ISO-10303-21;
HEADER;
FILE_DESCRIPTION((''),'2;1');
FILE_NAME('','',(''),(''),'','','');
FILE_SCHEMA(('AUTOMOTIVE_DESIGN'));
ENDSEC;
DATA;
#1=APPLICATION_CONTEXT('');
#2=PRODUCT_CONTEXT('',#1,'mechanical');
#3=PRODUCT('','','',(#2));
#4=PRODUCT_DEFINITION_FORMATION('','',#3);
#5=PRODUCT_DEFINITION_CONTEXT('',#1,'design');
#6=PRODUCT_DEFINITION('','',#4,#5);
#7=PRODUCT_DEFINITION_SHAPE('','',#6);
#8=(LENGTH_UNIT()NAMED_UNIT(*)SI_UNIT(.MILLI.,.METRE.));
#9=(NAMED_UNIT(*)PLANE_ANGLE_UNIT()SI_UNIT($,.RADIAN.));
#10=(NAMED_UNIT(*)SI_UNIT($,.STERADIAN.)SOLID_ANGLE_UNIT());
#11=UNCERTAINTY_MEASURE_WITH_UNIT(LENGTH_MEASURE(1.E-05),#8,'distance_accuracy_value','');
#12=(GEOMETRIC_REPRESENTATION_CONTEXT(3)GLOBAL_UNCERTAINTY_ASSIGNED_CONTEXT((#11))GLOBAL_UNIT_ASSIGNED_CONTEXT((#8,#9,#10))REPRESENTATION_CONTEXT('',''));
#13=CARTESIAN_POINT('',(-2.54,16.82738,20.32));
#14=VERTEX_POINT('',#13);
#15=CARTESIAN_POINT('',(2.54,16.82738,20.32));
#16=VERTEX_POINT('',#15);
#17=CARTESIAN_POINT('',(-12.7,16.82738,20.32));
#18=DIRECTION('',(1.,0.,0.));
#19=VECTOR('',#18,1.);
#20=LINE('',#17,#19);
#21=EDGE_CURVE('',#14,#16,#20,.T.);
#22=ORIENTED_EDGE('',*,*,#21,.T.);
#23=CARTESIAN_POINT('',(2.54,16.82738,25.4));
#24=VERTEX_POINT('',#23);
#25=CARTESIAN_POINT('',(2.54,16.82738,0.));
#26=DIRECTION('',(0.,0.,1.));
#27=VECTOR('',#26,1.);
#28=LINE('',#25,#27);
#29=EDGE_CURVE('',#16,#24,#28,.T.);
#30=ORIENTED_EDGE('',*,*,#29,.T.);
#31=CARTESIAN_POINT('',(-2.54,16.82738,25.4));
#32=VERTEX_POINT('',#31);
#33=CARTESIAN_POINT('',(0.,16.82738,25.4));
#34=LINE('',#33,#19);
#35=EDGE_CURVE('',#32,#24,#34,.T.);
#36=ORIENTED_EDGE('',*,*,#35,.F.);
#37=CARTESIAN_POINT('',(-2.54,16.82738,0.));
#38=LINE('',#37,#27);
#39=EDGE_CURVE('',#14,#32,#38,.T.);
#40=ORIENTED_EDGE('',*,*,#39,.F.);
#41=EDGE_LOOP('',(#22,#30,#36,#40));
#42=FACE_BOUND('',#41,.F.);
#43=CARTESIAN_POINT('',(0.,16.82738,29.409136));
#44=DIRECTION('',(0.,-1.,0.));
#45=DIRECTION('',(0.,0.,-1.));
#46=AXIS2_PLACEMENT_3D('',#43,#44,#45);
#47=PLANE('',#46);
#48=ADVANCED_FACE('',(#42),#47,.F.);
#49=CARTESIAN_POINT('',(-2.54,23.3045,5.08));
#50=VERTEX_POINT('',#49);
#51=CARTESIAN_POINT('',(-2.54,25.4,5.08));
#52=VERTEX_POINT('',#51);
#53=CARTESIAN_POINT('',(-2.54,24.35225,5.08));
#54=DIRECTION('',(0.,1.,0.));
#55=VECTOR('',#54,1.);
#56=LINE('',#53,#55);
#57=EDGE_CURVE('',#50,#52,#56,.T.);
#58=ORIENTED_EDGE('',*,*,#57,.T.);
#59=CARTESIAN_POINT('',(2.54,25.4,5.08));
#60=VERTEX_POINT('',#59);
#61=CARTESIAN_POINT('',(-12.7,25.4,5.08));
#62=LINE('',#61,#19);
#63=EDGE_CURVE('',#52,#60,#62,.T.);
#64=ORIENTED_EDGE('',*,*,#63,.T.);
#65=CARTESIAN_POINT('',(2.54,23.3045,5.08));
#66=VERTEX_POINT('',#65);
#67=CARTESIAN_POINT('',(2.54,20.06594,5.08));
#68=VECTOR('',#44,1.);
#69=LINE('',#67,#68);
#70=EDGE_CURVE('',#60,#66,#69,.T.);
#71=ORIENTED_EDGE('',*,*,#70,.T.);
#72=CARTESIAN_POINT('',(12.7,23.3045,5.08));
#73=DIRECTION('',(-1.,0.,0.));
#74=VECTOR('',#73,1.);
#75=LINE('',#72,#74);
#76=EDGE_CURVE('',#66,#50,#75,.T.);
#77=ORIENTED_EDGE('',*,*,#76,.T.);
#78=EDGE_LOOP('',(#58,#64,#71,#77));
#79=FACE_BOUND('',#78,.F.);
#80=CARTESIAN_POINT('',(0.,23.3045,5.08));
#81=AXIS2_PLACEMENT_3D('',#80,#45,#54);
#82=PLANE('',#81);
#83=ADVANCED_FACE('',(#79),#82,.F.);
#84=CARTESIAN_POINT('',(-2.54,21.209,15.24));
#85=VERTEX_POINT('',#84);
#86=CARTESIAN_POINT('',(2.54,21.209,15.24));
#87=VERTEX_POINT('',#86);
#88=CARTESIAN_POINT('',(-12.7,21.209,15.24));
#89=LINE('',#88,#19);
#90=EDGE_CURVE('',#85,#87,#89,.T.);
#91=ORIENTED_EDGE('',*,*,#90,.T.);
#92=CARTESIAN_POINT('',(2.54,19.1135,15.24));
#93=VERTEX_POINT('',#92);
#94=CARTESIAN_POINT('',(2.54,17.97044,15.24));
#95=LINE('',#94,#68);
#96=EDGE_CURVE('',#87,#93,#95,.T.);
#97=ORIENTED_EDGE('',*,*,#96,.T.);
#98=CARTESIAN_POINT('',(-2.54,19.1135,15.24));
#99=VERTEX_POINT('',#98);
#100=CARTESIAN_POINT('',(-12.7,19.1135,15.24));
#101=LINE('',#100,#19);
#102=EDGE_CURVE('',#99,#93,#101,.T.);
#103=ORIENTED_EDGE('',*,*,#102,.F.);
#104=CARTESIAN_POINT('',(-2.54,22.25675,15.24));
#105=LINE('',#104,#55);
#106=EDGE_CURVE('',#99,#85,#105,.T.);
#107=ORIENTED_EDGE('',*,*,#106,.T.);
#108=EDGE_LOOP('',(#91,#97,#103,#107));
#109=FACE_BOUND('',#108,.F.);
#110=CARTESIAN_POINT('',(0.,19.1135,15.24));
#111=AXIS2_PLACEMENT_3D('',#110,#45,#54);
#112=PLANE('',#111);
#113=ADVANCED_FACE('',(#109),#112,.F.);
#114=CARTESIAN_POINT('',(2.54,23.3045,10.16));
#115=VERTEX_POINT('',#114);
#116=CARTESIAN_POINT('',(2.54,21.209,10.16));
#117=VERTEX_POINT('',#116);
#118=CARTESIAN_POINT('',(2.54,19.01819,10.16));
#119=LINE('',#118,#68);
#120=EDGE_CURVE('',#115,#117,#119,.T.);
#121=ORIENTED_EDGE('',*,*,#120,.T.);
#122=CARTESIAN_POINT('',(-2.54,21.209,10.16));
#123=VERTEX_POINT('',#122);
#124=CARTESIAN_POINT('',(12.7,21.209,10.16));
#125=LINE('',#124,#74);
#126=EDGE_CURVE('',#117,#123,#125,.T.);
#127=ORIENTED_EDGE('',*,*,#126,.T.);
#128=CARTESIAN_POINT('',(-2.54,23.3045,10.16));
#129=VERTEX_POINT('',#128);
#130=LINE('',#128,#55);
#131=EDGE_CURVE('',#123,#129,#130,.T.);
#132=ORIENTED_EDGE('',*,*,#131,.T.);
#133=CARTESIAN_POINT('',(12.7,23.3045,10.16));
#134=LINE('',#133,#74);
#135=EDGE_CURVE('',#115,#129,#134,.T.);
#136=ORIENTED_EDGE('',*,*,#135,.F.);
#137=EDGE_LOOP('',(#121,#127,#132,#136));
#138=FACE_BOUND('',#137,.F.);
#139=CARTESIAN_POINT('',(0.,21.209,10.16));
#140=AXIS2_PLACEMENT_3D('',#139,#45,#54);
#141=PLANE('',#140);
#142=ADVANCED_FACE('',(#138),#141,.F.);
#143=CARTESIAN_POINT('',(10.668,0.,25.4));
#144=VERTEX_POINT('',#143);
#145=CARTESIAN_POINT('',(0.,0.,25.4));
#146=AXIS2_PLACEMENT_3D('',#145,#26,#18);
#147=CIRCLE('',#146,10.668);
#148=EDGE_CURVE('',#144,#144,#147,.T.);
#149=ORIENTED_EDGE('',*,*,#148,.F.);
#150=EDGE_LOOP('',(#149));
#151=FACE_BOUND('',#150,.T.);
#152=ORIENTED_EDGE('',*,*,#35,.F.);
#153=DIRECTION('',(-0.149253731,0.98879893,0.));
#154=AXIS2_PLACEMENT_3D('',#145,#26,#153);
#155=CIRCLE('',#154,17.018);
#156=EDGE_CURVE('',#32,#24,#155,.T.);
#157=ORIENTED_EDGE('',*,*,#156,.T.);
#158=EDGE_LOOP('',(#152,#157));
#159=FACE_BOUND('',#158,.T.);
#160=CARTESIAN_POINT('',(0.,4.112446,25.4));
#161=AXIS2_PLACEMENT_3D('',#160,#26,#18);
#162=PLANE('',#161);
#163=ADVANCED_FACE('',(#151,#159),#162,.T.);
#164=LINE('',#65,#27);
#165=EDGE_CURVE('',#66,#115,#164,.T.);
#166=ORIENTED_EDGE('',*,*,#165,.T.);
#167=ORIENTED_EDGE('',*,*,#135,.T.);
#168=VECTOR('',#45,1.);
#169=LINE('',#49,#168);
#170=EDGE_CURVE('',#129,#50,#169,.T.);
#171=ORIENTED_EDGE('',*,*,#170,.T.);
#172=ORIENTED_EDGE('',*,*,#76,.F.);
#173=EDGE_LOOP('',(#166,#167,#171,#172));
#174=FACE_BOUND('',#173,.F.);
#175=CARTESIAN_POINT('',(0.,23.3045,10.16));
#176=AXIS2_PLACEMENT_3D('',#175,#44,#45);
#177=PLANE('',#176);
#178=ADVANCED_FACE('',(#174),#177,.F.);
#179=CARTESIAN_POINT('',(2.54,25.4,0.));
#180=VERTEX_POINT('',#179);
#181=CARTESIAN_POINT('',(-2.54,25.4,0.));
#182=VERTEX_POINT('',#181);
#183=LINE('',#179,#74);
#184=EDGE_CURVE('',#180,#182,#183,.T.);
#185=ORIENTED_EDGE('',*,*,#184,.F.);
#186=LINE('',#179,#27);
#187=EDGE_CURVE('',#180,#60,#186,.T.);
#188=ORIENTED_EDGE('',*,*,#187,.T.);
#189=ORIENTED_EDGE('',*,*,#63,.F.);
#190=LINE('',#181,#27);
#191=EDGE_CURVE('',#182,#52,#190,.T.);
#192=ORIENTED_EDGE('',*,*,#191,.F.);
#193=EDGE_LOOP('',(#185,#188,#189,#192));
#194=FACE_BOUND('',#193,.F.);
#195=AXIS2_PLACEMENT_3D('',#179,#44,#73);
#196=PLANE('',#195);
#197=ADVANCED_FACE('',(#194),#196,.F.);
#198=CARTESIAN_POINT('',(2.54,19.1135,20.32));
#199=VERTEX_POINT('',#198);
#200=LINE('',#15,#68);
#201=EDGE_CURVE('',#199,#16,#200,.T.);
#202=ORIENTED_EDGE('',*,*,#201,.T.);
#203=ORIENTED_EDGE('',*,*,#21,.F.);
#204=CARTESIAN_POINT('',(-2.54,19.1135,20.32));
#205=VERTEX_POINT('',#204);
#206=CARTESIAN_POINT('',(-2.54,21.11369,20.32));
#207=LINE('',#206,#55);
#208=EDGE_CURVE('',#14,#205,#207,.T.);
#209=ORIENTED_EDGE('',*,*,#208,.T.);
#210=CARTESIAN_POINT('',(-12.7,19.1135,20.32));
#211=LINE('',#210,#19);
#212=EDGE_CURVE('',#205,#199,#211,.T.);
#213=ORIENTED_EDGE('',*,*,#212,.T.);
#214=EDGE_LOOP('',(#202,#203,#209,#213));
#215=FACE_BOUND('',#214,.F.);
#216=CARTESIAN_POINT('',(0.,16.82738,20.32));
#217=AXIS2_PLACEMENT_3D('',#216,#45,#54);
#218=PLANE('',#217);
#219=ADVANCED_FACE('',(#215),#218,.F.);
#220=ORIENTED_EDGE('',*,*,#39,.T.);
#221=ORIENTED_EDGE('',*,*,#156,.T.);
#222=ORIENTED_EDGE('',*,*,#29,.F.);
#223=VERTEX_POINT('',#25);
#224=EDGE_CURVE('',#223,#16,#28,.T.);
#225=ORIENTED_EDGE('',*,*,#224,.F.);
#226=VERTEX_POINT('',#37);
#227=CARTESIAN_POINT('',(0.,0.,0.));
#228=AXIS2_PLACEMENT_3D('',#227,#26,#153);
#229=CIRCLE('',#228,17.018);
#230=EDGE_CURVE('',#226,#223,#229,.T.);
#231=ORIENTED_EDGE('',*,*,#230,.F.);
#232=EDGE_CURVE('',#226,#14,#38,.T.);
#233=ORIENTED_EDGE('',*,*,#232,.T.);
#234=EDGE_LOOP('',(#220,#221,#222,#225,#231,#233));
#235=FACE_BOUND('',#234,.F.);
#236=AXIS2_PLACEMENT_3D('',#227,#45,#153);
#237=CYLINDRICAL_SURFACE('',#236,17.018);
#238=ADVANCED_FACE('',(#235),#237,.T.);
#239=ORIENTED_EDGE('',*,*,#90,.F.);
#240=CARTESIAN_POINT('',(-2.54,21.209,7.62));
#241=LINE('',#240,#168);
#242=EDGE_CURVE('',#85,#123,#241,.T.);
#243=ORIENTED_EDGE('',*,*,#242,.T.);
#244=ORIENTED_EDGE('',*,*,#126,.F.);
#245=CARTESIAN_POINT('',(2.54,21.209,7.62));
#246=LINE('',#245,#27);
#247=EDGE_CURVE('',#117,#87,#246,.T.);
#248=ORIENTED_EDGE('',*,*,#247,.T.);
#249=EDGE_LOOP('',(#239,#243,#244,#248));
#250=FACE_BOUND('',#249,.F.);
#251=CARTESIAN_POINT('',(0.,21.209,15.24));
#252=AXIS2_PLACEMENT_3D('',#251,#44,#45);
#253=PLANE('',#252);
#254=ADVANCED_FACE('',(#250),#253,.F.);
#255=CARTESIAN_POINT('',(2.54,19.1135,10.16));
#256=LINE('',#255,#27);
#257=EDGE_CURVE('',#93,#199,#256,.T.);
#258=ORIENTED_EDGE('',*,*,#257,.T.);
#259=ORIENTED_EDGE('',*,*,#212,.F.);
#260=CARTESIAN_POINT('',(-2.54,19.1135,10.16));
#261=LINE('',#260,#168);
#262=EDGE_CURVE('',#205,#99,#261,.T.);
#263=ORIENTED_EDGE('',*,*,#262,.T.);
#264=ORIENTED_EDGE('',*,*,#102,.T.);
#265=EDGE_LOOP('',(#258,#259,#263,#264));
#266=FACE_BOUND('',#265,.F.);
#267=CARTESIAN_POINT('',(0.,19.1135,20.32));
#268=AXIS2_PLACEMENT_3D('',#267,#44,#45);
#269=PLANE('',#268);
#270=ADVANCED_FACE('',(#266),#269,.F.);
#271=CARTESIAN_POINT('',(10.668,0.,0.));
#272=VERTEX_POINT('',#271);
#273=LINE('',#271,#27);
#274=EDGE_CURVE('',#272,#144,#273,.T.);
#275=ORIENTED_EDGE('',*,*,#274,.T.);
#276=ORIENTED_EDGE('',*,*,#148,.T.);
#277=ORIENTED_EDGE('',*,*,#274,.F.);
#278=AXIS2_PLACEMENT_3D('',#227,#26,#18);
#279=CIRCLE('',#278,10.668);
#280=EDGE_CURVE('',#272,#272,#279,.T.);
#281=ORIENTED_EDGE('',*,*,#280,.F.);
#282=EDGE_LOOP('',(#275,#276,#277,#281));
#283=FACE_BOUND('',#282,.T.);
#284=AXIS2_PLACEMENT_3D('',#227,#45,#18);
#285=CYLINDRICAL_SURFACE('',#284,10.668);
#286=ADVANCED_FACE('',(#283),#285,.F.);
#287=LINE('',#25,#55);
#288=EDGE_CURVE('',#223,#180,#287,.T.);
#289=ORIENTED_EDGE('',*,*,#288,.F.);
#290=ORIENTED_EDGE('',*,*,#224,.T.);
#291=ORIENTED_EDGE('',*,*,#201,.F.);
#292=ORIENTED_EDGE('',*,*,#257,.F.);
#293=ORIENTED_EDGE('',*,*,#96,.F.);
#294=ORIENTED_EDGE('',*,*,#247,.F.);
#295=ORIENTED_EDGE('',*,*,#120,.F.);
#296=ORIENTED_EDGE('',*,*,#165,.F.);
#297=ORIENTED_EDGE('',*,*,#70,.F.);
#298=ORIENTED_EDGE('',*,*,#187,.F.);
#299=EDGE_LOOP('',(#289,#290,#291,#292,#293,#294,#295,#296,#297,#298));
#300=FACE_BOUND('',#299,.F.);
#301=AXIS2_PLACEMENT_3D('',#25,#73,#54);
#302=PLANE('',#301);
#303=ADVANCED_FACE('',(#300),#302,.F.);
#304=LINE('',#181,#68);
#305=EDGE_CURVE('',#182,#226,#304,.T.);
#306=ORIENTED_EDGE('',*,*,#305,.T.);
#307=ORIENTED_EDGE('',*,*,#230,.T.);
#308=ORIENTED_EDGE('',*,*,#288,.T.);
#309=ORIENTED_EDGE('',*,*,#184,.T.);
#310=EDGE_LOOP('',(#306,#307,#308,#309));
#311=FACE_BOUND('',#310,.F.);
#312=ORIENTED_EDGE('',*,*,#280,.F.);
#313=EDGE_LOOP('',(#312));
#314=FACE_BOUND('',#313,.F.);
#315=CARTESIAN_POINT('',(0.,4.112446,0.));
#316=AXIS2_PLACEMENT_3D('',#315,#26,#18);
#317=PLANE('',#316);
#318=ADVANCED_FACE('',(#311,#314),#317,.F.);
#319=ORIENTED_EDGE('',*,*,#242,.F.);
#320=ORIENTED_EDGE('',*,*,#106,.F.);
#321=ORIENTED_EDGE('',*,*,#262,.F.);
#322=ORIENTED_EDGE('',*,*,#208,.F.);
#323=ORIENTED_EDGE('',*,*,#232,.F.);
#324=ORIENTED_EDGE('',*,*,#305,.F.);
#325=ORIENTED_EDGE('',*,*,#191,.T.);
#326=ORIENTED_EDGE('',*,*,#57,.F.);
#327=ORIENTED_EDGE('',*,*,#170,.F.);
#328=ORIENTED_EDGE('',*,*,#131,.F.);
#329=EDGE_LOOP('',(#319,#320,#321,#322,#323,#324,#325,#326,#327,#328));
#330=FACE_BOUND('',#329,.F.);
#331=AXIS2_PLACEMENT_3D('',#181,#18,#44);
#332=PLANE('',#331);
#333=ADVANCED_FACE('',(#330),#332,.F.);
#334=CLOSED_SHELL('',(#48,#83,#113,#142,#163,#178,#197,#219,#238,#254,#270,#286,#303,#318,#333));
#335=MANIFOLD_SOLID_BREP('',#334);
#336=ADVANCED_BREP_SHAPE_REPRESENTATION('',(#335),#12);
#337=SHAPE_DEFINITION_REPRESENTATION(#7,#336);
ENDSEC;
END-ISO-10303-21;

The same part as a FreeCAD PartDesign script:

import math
import FreeCAD as App
import Part
import Sketcher
Q = App.Units.Quantity

doc = App.newDocument("Part")
body = doc.addObject("PartDesign::Body", "Body")

# Sketch on XY plane
sketch1 = body.newObject("Sketcher::SketchObject", "Sketch")
sketch1.AttachmentSupport = (doc.getObject("XY_Plane"), [""])
sketch1.MapMode = "FlatFace"
sketch1.addGeometry([
    Part.LineSegment(App.Vector(-3, 25, 0), App.Vector(-3, 17, 0)),  # 0
    Part.ArcOfCircle(Part.Circle(App.Vector(0, 0, 0), App.Vector(0, 0, 1), 17), math.radians(99), math.radians(441)),  # 1
    Part.LineSegment(App.Vector(3, 17, 0), App.Vector(3, 25, 0)),  # 2
    Part.LineSegment(App.Vector(3, 25, 0), App.Vector(-3, 25, 0)),  # 3
    Part.Circle(App.Vector(0, 0, 0), App.Vector(0, 0, 1), 11),  # 4
], False)
sketch1.addConstraint([
    Sketcher.Constraint("Coincident", 0, 2, 1, 1),
    Sketcher.Constraint("Coincident", 1, 2, 2, 1),
    Sketcher.Constraint("Coincident", 2, 2, 3, 1),
    Sketcher.Constraint("Coincident", 3, 2, 0, 1),
    Sketcher.Constraint("Vertical", 0),
    Sketcher.Constraint("Vertical", 2),
    Sketcher.Constraint("Horizontal", 3),
    Sketcher.Constraint("Coincident", 1, 3, -1, 1),
    Sketcher.Constraint("Coincident", 4, 3, -1, 1),
    Sketcher.Constraint("Horizontal", 0, 2, 1, 2),
    Sketcher.Constraint("Diameter", 4, Q("0.84 in")),
    Sketcher.Constraint("Radius", 1, Q("0.67 in")),
    Sketcher.Constraint("DistanceX", 3, 2, 3, 1, Q("0.2 in")),
    Sketcher.Constraint("DistanceY", -1, 1, 2, 2, Q("1 in")),
])
pad1 = body.newObject("PartDesign::Pad", "Pad")
pad1.Profile = sketch1
pad1.Length = Q("1 in")

# Sketch on YZ plane
sketch2 = body.newObject("Sketcher::SketchObject", "Sketch001")
sketch2.AttachmentSupport = (doc.getObject("YZ_Plane"), [""])
sketch2.MapMode = "FlatFace"
sketch2.addGeometry([
    Part.LineSegment(App.Vector(23.3, 5.1, 0), App.Vector(25.4, 5.1, 0)),  # 0
    Part.LineSegment(App.Vector(25.4, 5.1, 0), App.Vector(25.4, -8.1, 0)),  # 1
    Part.LineSegment(App.Vector(25.4, -8.1, 0), App.Vector(35, -8.1, 0)),  # 2
    Part.LineSegment(App.Vector(35, -8.1, 0), App.Vector(35, 29.4, 0)),  # 3
    Part.LineSegment(App.Vector(35, 29.4, 0), App.Vector(16.8, 29.4, 0)),  # 4
    Part.LineSegment(App.Vector(16.8, 29.4, 0), App.Vector(16.8, 20.3, 0)),  # 5
    Part.LineSegment(App.Vector(16.8, 20.3, 0), App.Vector(19.1, 20.3, 0)),  # 6
    Part.LineSegment(App.Vector(19.1, 20.3, 0), App.Vector(19.1, 15.2, 0)),  # 7
    Part.LineSegment(App.Vector(19.1, 15.2, 0), App.Vector(21.2, 15.2, 0)),  # 8
    Part.LineSegment(App.Vector(21.2, 15.2, 0), App.Vector(21.2, 10.2, 0)),  # 9
    Part.LineSegment(App.Vector(21.2, 10.2, 0), App.Vector(23.3, 10.2, 0)),  # 10
    Part.LineSegment(App.Vector(23.3, 10.2, 0), App.Vector(23.3, 5.1, 0)),  # 11
], False)
sketch2.addConstraint([
    Sketcher.Constraint("Coincident", 0, 2, 1, 1),
    Sketcher.Constraint("Coincident", 1, 2, 2, 1),
    Sketcher.Constraint("Coincident", 2, 2, 3, 1),
    Sketcher.Constraint("Coincident", 3, 2, 4, 1),
    Sketcher.Constraint("Coincident", 4, 2, 5, 1),
    Sketcher.Constraint("Coincident", 5, 2, 6, 1),
    Sketcher.Constraint("Coincident", 6, 2, 7, 1),
    Sketcher.Constraint("Coincident", 7, 2, 8, 1),
    Sketcher.Constraint("Coincident", 8, 2, 9, 1),
    Sketcher.Constraint("Coincident", 9, 2, 10, 1),
    Sketcher.Constraint("Coincident", 10, 2, 11, 1),
    Sketcher.Constraint("Coincident", 11, 2, 0, 1),
    Sketcher.Constraint("Horizontal", 0),
    Sketcher.Constraint("Vertical", 1),
    Sketcher.Constraint("Horizontal", 2),
    Sketcher.Constraint("Vertical", 3),
    Sketcher.Constraint("Horizontal", 4),
    Sketcher.Constraint("Vertical", 5),
    Sketcher.Constraint("Horizontal", 6),
    Sketcher.Constraint("Vertical", 7),
    Sketcher.Constraint("Horizontal", 8),
    Sketcher.Constraint("Vertical", 9),
    Sketcher.Constraint("Horizontal", 10),
    Sketcher.Constraint("Vertical", 11),
    Sketcher.Constraint("Equal", 0, 8),
    Sketcher.Constraint("Equal", 8, 10),
    Sketcher.Constraint("Equal", 7, 9),
    Sketcher.Constraint("Equal", 9, 11),
    Sketcher.Constraint("DistanceY", 7, 2, 7, 1, Q("0.2 in")),
    Sketcher.Constraint("DistanceX", -1, 1, 0, 2, Q("1 in")),
    Sketcher.Constraint("DistanceY", -1, 1, 0, 2, Q("0.2 in")),
    Sketcher.Constraint("DistanceX", 0, 1, 0, 2, Q("0.0825 in")),
    Sketcher.Constraint("DistanceX", 2, 1, 2, 2, Q("9.558899 mm")),
    Sketcher.Constraint("DistanceX", 4, 2, 4, 1, Q("18.131519 mm")),
    Sketcher.Constraint("DistanceY", 3, 1, 3, 2, Q("37.48416 mm")),
    Sketcher.Constraint("DistanceY", 1, 2, 1, 1, Q("13.155023 mm")),
])
pocket1 = body.newObject("PartDesign::Pocket", "Pocket")
pocket1.Profile = sketch2
pocket1.Length = Q("1 in")
pocket1.Midplane = True

doc.recompute()
